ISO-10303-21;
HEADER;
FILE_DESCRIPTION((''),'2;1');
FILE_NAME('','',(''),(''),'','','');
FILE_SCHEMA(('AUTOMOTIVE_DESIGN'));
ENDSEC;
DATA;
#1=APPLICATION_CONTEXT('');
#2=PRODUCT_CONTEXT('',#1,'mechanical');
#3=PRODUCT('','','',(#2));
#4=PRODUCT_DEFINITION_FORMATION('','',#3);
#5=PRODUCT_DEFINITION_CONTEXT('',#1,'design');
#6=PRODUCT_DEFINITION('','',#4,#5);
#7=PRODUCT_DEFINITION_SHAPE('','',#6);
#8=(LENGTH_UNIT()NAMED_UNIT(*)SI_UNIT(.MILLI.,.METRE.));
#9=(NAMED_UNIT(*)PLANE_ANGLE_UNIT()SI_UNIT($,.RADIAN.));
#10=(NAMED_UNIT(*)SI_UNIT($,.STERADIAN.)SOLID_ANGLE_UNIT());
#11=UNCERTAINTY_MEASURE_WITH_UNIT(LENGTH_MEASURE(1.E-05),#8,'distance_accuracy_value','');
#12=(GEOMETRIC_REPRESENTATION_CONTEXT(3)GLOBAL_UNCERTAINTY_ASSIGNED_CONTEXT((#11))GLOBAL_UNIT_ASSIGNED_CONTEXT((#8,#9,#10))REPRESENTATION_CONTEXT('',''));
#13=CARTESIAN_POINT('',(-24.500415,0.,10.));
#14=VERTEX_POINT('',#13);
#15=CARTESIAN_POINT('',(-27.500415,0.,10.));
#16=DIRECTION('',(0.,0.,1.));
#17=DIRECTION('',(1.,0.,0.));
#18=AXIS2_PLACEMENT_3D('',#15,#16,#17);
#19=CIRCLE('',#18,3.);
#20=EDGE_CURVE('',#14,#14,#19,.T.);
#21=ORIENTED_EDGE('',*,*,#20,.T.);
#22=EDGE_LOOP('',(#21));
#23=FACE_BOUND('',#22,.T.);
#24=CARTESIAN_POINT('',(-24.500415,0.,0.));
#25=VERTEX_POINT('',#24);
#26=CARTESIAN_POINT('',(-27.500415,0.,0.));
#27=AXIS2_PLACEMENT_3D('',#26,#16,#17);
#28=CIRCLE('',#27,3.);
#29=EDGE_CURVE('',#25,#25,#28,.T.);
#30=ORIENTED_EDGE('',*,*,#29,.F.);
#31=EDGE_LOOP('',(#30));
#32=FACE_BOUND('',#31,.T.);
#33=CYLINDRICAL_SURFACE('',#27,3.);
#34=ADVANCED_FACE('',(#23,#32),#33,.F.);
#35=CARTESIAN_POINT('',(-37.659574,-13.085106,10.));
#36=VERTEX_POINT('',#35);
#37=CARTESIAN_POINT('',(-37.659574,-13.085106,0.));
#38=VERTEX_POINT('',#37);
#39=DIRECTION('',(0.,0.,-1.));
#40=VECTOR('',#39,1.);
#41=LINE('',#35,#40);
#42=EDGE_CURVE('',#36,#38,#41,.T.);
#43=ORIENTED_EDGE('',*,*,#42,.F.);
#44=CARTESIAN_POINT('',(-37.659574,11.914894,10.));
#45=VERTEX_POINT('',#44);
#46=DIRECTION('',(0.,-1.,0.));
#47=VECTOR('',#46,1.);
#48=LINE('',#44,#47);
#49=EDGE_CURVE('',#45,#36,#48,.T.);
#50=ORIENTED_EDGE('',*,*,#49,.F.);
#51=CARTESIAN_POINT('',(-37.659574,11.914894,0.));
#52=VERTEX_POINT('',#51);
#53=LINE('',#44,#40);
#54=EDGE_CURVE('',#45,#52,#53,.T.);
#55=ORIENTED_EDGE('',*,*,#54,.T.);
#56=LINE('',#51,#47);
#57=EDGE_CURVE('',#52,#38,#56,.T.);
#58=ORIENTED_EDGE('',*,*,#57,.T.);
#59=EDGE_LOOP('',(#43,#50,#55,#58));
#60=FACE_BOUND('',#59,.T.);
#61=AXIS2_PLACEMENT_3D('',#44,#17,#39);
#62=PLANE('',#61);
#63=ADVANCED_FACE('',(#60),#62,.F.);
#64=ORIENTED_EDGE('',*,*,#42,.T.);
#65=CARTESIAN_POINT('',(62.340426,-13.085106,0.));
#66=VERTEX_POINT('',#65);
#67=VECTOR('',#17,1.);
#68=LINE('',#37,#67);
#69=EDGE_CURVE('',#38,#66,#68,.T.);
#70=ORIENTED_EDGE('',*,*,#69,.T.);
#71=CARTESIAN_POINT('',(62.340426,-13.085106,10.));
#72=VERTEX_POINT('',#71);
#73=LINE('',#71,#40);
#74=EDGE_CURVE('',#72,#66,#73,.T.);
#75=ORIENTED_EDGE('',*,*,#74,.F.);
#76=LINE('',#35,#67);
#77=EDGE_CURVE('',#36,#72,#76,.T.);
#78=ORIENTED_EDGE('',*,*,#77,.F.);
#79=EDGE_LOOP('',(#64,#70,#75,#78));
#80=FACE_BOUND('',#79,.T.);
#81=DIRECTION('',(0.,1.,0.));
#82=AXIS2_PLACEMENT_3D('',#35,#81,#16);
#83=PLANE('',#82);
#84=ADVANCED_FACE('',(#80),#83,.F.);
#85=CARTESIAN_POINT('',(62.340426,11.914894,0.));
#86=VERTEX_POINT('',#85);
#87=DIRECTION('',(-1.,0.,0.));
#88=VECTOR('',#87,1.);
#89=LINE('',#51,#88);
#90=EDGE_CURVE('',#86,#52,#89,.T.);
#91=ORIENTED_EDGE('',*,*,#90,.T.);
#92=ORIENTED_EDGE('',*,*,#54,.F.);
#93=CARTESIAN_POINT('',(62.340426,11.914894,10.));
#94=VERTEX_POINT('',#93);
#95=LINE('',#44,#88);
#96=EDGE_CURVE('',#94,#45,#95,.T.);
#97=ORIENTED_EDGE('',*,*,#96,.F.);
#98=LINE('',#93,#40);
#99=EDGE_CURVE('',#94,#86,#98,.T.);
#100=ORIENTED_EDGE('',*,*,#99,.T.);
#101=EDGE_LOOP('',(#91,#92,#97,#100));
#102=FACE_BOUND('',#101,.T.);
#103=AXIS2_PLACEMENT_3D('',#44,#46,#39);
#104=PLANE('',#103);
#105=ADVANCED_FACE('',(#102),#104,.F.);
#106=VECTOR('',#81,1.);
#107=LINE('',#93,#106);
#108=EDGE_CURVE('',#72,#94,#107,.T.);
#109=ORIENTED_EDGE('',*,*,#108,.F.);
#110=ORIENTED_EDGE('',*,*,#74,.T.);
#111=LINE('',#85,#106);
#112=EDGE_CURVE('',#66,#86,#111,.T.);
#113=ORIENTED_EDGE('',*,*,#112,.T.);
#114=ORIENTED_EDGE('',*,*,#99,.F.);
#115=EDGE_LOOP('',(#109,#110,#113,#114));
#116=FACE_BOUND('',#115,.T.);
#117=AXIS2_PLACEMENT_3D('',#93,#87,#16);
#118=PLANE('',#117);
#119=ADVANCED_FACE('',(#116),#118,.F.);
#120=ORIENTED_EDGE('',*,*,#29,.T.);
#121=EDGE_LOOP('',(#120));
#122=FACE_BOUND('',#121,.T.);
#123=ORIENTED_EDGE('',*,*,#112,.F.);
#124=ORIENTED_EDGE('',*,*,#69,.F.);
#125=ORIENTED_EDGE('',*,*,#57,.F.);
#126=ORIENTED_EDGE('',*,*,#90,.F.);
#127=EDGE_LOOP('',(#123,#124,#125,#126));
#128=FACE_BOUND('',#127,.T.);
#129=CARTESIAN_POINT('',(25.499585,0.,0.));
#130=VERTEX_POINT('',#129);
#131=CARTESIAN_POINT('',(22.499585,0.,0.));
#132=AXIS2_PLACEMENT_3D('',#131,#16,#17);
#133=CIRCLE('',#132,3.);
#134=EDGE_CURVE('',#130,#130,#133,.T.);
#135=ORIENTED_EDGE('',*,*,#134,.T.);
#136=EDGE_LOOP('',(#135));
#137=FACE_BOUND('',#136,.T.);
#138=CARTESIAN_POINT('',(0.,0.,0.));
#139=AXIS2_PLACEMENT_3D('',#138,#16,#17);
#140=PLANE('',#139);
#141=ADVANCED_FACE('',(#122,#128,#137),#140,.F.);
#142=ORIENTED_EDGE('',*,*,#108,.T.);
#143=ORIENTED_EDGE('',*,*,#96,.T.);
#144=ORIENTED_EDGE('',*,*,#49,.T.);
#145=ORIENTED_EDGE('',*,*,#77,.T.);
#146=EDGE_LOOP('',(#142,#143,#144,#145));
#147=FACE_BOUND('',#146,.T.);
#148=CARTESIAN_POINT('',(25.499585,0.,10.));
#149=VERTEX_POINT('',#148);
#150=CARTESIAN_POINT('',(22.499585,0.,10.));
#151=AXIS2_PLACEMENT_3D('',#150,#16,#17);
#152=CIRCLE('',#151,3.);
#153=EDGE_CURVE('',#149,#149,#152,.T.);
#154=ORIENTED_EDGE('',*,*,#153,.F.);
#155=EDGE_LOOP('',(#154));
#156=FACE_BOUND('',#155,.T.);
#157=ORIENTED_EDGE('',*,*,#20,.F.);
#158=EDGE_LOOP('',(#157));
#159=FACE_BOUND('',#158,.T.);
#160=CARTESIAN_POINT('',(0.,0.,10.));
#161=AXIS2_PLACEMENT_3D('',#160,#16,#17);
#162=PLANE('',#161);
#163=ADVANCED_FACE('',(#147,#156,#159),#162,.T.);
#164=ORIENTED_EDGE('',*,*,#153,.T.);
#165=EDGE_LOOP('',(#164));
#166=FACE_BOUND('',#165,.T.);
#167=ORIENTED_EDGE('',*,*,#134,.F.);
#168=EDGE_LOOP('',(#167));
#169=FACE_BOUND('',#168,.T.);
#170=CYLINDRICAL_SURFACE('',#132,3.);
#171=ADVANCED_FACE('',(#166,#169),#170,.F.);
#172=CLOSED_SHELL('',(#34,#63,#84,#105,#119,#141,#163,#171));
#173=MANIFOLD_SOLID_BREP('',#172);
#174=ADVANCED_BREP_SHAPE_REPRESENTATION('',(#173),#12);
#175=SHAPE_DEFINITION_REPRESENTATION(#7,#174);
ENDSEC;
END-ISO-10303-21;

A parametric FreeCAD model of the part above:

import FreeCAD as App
import Part
import Sketcher

V = App.Vector


def add_polygon(sketch, points):
    """Adds a closed chain of lines whose ends are joined by coincident constraints."""
    first, n = sketch.GeometryCount, len(points)
    for a, b in zip(points, points[1:] + points[:1]):
        sketch.addGeometry(Part.LineSegment(App.Vector(*a, 0), App.Vector(*b, 0)), False)
    for i in range(n):
        sketch.addConstraint(Sketcher.Constraint("Coincident", first + i, 2, first + (i + 1) % n, 1))

doc = App.newDocument("Part")
body = doc.addObject("PartDesign::Body", "Body")

# Sketch on XY plane
sketch1 = body.newObject("Sketcher::SketchObject", "Sketch")
sketch1.AttachmentSupport = (doc.getObject("XY_Plane"), [""])
sketch1.MapMode = "FlatFace"
add_polygon(sketch1, [(-38, 12), (-38, -13), (62, -13), (62, 12)])  # lines 0-3
sketch1.addConstraint([
    Sketcher.Constraint("Vertical", 0),
    Sketcher.Constraint("Horizontal", 1),
    Sketcher.Constraint("Vertical", 2),
    Sketcher.Constraint("Horizontal", 3),
    Sketcher.Constraint("DistanceX", 1, 1, 1, 2, 100.0),
    Sketcher.Constraint("DistanceY", 0, 2, 0, 1, 25.0),
    Sketcher.Constraint("DistanceX", 0, 2, -1, 1, 37.659574),
    Sketcher.Constraint("DistanceY", 0, 2, -1, 1, 13.085106),
])
pad1 = body.newObject("PartDesign::Pad", "Pad")
pad1.Profile = sketch1
pad1.Length = 10

# Sketch on XY plane
sketch2 = body.newObject("Sketcher::SketchObject", "Sketch001")
sketch2.AttachmentSupport = (doc.getObject("XY_Plane"), [""])
sketch2.MapMode = "FlatFace"
sketch2.AttachmentOffset = App.Placement(V(0, 0, 10), App.Rotation())
sketch2.addGeometry(Part.Circle(V(-27.5, 0, 0), V(0, 0, 1), 3), False)
sketch2.addConstraint([
    Sketcher.Constraint("PointOnObject", 0, 3, -1),
    Sketcher.Constraint("Diameter", 0, 6.0),
    Sketcher.Constraint("DistanceX", 0, 3, -1, 1, 27.500415),
])
pocket1 = body.newObject("PartDesign::Pocket", "Pocket")
pocket1.Profile = sketch2
pocket1.Length = 10

# Sketch on XY plane
sketch3 = body.newObject("Sketcher::SketchObject", "Sketch002")
sketch3.AttachmentSupport = (doc.getObject("XY_Plane"), [""])
sketch3.MapMode = "FlatFace"
sketch3.AttachmentOffset = App.Placement(V(0, 0, 10), App.Rotation())
sketch3.addGeometry(Part.Circle(V(22.5, 0, 0), V(0, 0, 1), 3), False)
sketch3.addConstraint([
    Sketcher.Constraint("PointOnObject", 0, 3, -1),
    Sketcher.Constraint("Diameter", 0, 6.0),
    Sketcher.Constraint("DistanceX", -1, 1, 0, 3, 22.499585),
])
pocket2 = body.newObject("PartDesign::Pocket", "Pocket001")
pocket2.Profile = sketch3
pocket2.Length = 10

doc.recompute()
